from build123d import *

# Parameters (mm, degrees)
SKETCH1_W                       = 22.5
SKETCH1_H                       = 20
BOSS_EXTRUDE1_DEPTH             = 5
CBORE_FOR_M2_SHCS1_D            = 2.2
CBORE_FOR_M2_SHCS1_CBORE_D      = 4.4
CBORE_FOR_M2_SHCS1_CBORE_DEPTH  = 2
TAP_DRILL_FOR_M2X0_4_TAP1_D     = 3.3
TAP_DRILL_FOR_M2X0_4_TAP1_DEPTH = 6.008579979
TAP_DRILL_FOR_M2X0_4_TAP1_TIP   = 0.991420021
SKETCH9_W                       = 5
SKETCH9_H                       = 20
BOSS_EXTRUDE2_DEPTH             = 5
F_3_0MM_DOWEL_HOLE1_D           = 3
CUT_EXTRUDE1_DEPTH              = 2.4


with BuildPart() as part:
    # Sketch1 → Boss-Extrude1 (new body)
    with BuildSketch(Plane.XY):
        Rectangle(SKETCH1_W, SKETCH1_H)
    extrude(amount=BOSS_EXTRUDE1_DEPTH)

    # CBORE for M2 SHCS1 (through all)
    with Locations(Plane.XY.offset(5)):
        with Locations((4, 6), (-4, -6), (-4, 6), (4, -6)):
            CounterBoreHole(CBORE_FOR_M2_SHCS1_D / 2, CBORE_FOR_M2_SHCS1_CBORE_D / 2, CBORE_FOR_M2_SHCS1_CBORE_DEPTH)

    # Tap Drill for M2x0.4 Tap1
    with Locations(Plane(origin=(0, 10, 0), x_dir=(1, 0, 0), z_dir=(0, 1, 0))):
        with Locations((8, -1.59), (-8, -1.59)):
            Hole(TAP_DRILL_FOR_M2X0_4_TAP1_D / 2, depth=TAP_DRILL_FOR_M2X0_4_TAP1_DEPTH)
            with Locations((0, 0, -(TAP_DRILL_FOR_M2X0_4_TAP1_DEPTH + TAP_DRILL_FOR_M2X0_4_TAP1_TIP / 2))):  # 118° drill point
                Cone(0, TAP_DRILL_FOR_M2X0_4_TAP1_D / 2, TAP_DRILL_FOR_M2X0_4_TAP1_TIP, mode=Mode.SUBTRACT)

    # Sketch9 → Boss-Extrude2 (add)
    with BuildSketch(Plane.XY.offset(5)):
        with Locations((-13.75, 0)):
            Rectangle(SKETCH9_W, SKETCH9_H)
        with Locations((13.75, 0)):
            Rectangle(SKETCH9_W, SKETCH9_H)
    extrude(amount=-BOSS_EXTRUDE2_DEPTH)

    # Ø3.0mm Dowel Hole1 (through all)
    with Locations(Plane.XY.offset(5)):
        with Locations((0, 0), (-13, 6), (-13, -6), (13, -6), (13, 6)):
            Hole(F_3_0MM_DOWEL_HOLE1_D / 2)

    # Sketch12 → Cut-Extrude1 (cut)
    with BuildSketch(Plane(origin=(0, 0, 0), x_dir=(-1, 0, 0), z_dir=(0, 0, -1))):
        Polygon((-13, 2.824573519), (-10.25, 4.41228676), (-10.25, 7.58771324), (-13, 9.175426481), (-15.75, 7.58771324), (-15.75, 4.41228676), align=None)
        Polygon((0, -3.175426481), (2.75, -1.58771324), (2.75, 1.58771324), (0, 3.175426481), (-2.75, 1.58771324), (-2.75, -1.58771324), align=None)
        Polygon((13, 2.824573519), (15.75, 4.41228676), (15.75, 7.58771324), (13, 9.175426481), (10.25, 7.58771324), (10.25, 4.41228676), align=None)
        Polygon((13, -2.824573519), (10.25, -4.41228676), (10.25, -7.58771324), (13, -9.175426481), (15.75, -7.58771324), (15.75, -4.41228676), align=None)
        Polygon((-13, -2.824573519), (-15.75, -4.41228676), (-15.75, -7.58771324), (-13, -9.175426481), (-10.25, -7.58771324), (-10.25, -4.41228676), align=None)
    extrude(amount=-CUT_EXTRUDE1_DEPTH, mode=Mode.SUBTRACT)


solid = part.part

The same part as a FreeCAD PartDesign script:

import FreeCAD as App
import Part
import Sketcher
from FreeCAD import Vector
Q = App.Units.Quantity

doc = App.newDocument("Part")
body = doc.addObject("PartDesign::Body", "Body")

sketch1 = body.newObject("Sketcher::SketchObject", "Sketch")
sketch1.AttachmentSupport = (doc.getObject("XY_Plane"), [""])
sketch1.MapMode = "FlatFace"
sketch1.addGeometry(Part.LineSegment(Vector(-11, 10, 0), Vector(-11, -10, 0)), False)
sketch1.addGeometry(Part.LineSegment(Vector(-11, -10, 0), Vector(11, -10, 0)), False)
sketch1.addGeometry(Part.LineSegment(Vector(11, -10, 0), Vector(11, 10, 0)), False)
sketch1.addGeometry(Part.LineSegment(Vector(11, 10, 0), Vector(-11, 10, 0)), False)
sketch1.addConstraint(Sketcher.Constraint("Coincident", 0, 2, 1, 1))
sketch1.addConstraint(Sketcher.Constraint("Coincident", 1, 2, 2, 1))
sketch1.addConstraint(Sketcher.Constraint("Coincident", 2, 2, 3, 1))
sketch1.addConstraint(Sketcher.Constraint("Coincident", 3, 2, 0, 1))
sketch1.addConstraint(Sketcher.Constraint("Vertical", 0))
sketch1.addConstraint(Sketcher.Constraint("Horizontal", 1))
sketch1.addConstraint(Sketcher.Constraint("Vertical", 2))
sketch1.addConstraint(Sketcher.Constraint("Horizontal", 3))
sketch1.addConstraint(Sketcher.Constraint("Symmetric", 0, 2, 2, 2, -1, 1))
sketch1.addConstraint(Sketcher.Constraint("DistanceY", 0, 2, 0, 1, Q("20 mm")))
sketch1.addConstraint(Sketcher.Constraint("DistanceX", 1, 1, 1, 2, Q("22.5 mm")))
pad1 = body.newObject("PartDesign::Pad", "Pad")
pad1.Profile = sketch1
pad1.Length = 5

sketch2 = body.newObject("Sketcher::SketchObject", "Sketch001")
sketch2.AttachmentSupport = (doc.getObject("XY_Plane"), [""])
sketch2.MapMode = "FlatFace"
sketch2.AttachmentOffset = App.Placement(Vector(0, 0, 5), App.Rotation())
sketch2.addGeometry(Part.Circle(Vector(4, 6, 0), Vector(0, 0, 1), 1.1), False)
sketch2.addGeometry(Part.Circle(Vector(-4, -6, 0), Vector(0, 0, 1), 1.1), False)
sketch2.addGeometry(Part.Circle(Vector(-4, 6, 0), Vector(0, 0, 1), 1.1), False)
sketch2.addGeometry(Part.Circle(Vector(4, -6, 0), Vector(0, 0, 1), 1.1), False)
sketch2.addConstraint(Sketcher.Constraint("Equal", 0, 1))
sketch2.addConstraint(Sketcher.Constraint("Equal", 1, 2))
sketch2.addConstraint(Sketcher.Constraint("Equal", 2, 3))
sketch2.addConstraint(Sketcher.Constraint("Symmetric", 0, 3, 1, 3, -1, 1))
sketch2.addConstraint(Sketcher.Constraint("Symmetric", 2, 3, 3, 3, -1, 1))
sketch2.addConstraint(Sketcher.Constraint("Symmetric", 0, 3, 2, 3, -2))
sketch2.addConstraint(Sketcher.Constraint("Diameter", 0, Q("2.2 mm")))
sketch2.addConstraint(Sketcher.Constraint("DistanceX", -1, 1, 0, 3, Q("4 mm")))
sketch2.addConstraint(Sketcher.Constraint("DistanceY", -1, 1, 0, 3, Q("6 mm")))
doc.recompute()
hole = body.newObject("PartDesign::Hole", "Hole")
hole.Profile = sketch2
hole.ThreadType = "None"
hole.Diameter = 2.2
hole.DepthType = "ThroughAll"
hole.HoleCutType = "Counterbore"
hole.HoleCutDiameter = 4.4
hole.HoleCutDepth = 2

sketch3 = body.newObject("Sketcher::SketchObject", "Sketch002")
sketch3.AttachmentSupport = (doc.getObject("XZ_Plane"), [""])
sketch3.MapMode = "FlatFace"
sketch3.AttachmentOffset = App.Placement(Vector(0, 0, -10), App.Rotation())
sketch3.addGeometry(Part.Circle(Vector(8, 1.6, 0), Vector(0, 0, 1), 1.6), False)
sketch3.addGeometry(Part.Circle(Vector(-8, 1.6, 0), Vector(0, 0, 1), 1.6), False)
sketch3.addConstraint(Sketcher.Constraint("Equal", 0, 1))
sketch3.addConstraint(Sketcher.Constraint("Symmetric", 0, 3, 1, 3, -2))
sketch3.addConstraint(Sketcher.Constraint("Diameter", 0, Q("3.3 mm")))
sketch3.addConstraint(Sketcher.Constraint("DistanceX", -1, 1, 0, 3, Q("8 mm")))
sketch3.addConstraint(Sketcher.Constraint("DistanceY", -1, 1, 0, 3, Q("1.59 mm")))
doc.recompute()
hole2 = body.newObject("PartDesign::Hole", "Hole001")
hole2.Profile = sketch3
hole2.ThreadType = "None"
hole2.Diameter = 3.3
hole2.DepthType = "Dimension"
hole2.Depth = 6.00858
hole2.DrillPoint = "Angled"
hole2.DrillPointAngle = 118
hole2.Reversed = True

sketch4 = body.newObject("Sketcher::SketchObject", "Sketch003")
sketch4.AttachmentSupport = (doc.getObject("XY_Plane"), [""])
sketch4.MapMode = "FlatFace"
sketch4.AttachmentOffset = App.Placement(Vector(0, 0, 5), App.Rotation())
sketch4.addGeometry(Part.LineSegment(Vector(-16, 10, 0), Vector(-16, -10, 0)), False)
sketch4.addGeometry(Part.LineSegment(Vector(-16, -10, 0), Vector(-11, -10, 0)), False)
sketch4.addGeometry(Part.LineSegment(Vector(-11, -10, 0), Vector(-11, 10, 0)), False)
sketch4.addGeometry(Part.LineSegment(Vector(-11, 10, 0), Vector(-16, 10, 0)), False)
sketch4.addGeometry(Part.LineSegment(Vector(11, 10, 0), Vector(11, -10, 0)), False)
sketch4.addGeometry(Part.LineSegment(Vector(11, -10, 0), Vector(16, -10, 0)), False)
sketch4.addGeometry(Part.LineSegment(Vector(16, -10, 0), Vector(16, 10, 0)), False)
sketch4.addGeometry(Part.LineSegment(Vector(16, 10, 0), Vector(11, 10, 0)), False)
sketch4.addConstraint(Sketcher.Constraint("Coincident", 0, 2, 1, 1))
sketch4.addConstraint(Sketcher.Constraint("Coincident", 1, 2, 2, 1))
sketch4.addConstraint(Sketcher.Constraint("Coincident", 2, 2, 3, 1))
sketch4.addConstraint(Sketcher.Constraint("Coincident", 3, 2, 0, 1))
sketch4.addConstraint(Sketcher.Constraint("Coincident", 4, 2, 5, 1))
sketch4.addConstraint(Sketcher.Constraint("Coincident", 5, 2, 6, 1))
sketch4.addConstraint(Sketcher.Constraint("Coincident", 6, 2, 7, 1))
sketch4.addConstraint(Sketcher.Constraint("Coincident", 7, 2, 4, 1))
sketch4.addConstraint(Sketcher.Constraint("Vertical", 0))
sketch4.addConstraint(Sketcher.Constraint("Horizontal", 1))
sketch4.addConstraint(Sketcher.Constraint("Vertical", 2))
sketch4.addConstraint(Sketcher.Constraint("Horizontal", 3))
sketch4.addConstraint(Sketcher.Constraint("Vertical", 4))
sketch4.addConstraint(Sketcher.Constraint("Horizontal", 5))
sketch4.addConstraint(Sketcher.Constraint("Vertical", 6))
sketch4.addConstraint(Sketcher.Constraint("Horizontal", 7))
sketch4.addConstraint(Sketcher.Constraint("Symmetric", 2, 2, 4, 2, -1, 1))
sketch4.addConstraint(Sketcher.Constraint("Symmetric", 0, 2, 6, 2, -1, 1))
sketch4.addConstraint(Sketcher.Constraint("Horizontal", 1, 2, 4, 2))
sketch4.addConstraint(Sketcher.Constraint("DistanceX", 1, 1, 1, 2, Q("5 mm")))
sketch4.addConstraint(Sketcher.Constraint("DistanceY", 0, 2, 0, 1, Q("20 mm")))
sketch4.addConstraint(Sketcher.Constraint("DistanceX", 1, 2, 4, 2, Q("22.5 mm")))
pad2 = body.newObject("PartDesign::Pad", "Pad001")
pad2.Profile = sketch4
pad2.Length = 5
pad2.Reversed = True

sketch5 = body.newObject("Sketcher::SketchObject", "Sketch004")
sketch5.AttachmentSupport = (doc.getObject("XY_Plane"), [""])
sketch5.MapMode = "FlatFace"
sketch5.AttachmentOffset = App.Placement(Vector(0, 0, 5), App.Rotation())
sketch5.addGeometry(Part.Circle(Vector(0, 0, 0), Vector(0, 0, 1), 1.5), False)
sketch5.addGeometry(Part.Circle(Vector(-13, 6, 0), Vector(0, 0, 1), 1.5), False)
sketch5.addGeometry(Part.Circle(Vector(-13, -6, 0), Vector(0, 0, 1), 1.5), False)
sketch5.addGeometry(Part.Circle(Vector(13, -6, 0), Vector(0, 0, 1), 1.5), False)
sketch5.addGeometry(Part.Circle(Vector(13, 6, 0), Vector(0, 0, 1), 1.5), False)
sketch5.addConstraint(Sketcher.Constraint("Coincident", 0, 3, -1, 1))
sketch5.addConstraint(Sketcher.Constraint("Equal", 0, 1))
sketch5.addConstraint(Sketcher.Constraint("Equal", 1, 2))
sketch5.addConstraint(Sketcher.Constraint("Equal", 2, 3))
sketch5.addConstraint(Sketcher.Constraint("Equal", 3, 4))
sketch5.addConstraint(Sketcher.Constraint("Symmetric", 1, 3, 3, 3, -1, 1))
sketch5.addConstraint(Sketcher.Constraint("Symmetric", 2, 3, 4, 3, -1, 1))
sketch5.addConstraint(Sketcher.Constraint("Symmetric", 2, 3, 3, 3, -2))
sketch5.addConstraint(Sketcher.Constraint("Diameter", 0, Q("3 mm")))
sketch5.addConstraint(Sketcher.Constraint("DistanceX", 1, 3, -1, 1, Q("13 mm")))
sketch5.addConstraint(Sketcher.Constraint("DistanceY", -1, 1, 1, 3, Q("6 mm")))
doc.recompute()
hole3 = body.newObject("PartDesign::Hole", "Hole002")
hole3.Profile = sketch5
hole3.ThreadType = "None"
hole3.Diameter = 3
hole3.DepthType = "ThroughAll"

sketch6 = body.newObject("Sketcher::SketchObject", "Sketch005")
sketch6.AttachmentSupport = (doc.getObject("XY_Plane"), [""])
sketch6.MapMode = "FlatFace"
sketch6.addGeometry(Part.LineSegment(Vector(13, 2.8, 0), Vector(10.2, 4.4, 0)), False)
sketch6.addGeometry(Part.LineSegment(Vector(10.2, 4.4, 0), Vector(10.2, 7.6, 0)), False)
sketch6.addGeometry(Part.LineSegment(Vector(10.2, 7.6, 0), Vector(13, 9.2, 0)), False)
sketch6.addGeometry(Part.LineSegment(Vector(13, 9.2, 0), Vector(15.8, 7.6, 0)), False)
sketch6.addGeometry(Part.LineSegment(Vector(15.8, 7.6, 0), Vector(15.8, 4.4, 0)), False)
sketch6.addGeometry(Part.LineSegment(Vector(15.8, 4.4, 0), Vector(13, 2.8, 0)), False)
sketch6.addGeometry(Part.LineSegment(Vector(0, -3.2, 0), Vector(-2.8, -1.6, 0)), False)
sketch6.addGeometry(Part.LineSegment(Vector(-2.8, -1.6, 0), Vector(-2.8, 1.6, 0)), False)
sketch6.addGeometry(Part.LineSegment(Vector(-2.8, 1.6, 0), Vector(0, 3.2, 0)), False)
sketch6.addGeometry(Part.LineSegment(Vector(0, 3.2, 0), Vector(2.8, 1.6, 0)), False)
sketch6.addGeometry(Part.LineSegment(Vector(2.8, 1.6, 0), Vector(2.8, -1.6, 0)), False)
sketch6.addGeometry(Part.LineSegment(Vector(2.8, -1.6, 0), Vector(0, -3.2, 0)), False)
sketch6.addGeometry(Part.LineSegment(Vector(-13, 2.8, 0), Vector(-15.8, 4.4, 0)), False)
sketch6.addGeometry(Part.LineSegment(Vector(-15.8, 4.4, 0), Vector(-15.8, 7.6, 0)), False)
sketch6.addGeometry(Part.LineSegment(Vector(-15.8, 7.6, 0), Vector(-13, 9.2, 0)), False)
sketch6.addGeometry(Part.LineSegment(Vector(-13, 9.2, 0), Vector(-10.2, 7.6, 0)), False)
sketch6.addGeometry(Part.LineSegment(Vector(-10.2, 7.6, 0), Vector(-10.2, 4.4, 0)), False)
sketch6.addGeometry(Part.LineSegment(Vector(-10.2, 4.4, 0), Vector(-13, 2.8, 0)), False)
sketch6.addGeometry(Part.LineSegment(Vector(-13, -2.8, 0), Vector(-10.2, -4.4, 0)), False)
sketch6.addGeometry(Part.LineSegment(Vector(-10.2, -4.4, 0), Vector(-10.2, -7.6, 0)), False)
sketch6.addGeometry(Part.LineSegment(Vector(-10.2, -7.6, 0), Vector(-13, -9.2, 0)), False)
sketch6.addGeometry(Part.LineSegment(Vector(-13, -9.2, 0), Vector(-15.8, -7.6, 0)), False)
sketch6.addGeometry(Part.LineSegment(Vector(-15.8, -7.6, 0), Vector(-15.8, -4.4, 0)), False)
sketch6.addGeometry(Part.LineSegment(Vector(-15.8, -4.4, 0), Vector(-13, -2.8, 0)), False)
sketch6.addGeometry(Part.LineSegment(Vector(13, -2.8, 0), Vector(15.8, -4.4, 0)), False)
sketch6.addGeometry(Part.LineSegment(Vector(15.8, -4.4, 0), Vector(15.8, -7.6, 0)), False)
sketch6.addGeometry(Part.LineSegment(Vector(15.8, -7.6, 0), Vector(13, -9.2, 0)), False)
sketch6.addGeometry(Part.LineSegment(Vector(13, -9.2, 0), Vector(10.2, -7.6, 0)), False)
sketch6.addGeometry(Part.LineSegment(Vector(10.2, -7.6, 0), Vector(10.2, -4.4, 0)), False)
sketch6.addGeometry(Part.LineSegment(Vector(10.2, -4.4, 0), Vector(13, -2.8, 0)), False)
sketch6.addConstraint(Sketcher.Constraint("Coincident", 0, 2, 1, 1))
sketch6.addConstraint(Sketcher.Constraint("Coincident", 1, 2, 2, 1))
sketch6.addConstraint(Sketcher.Constraint("Coincident", 2, 2, 3, 1))
sketch6.addConstraint(Sketcher.Constraint("Coincident", 3, 2, 4, 1))
sketch6.addConstraint(Sketcher.Constraint("Coincident", 4, 2, 5, 1))
sketch6.addConstraint(Sketcher.Constraint("Coincident", 5, 2, 0, 1))
sketch6.addConstraint(Sketcher.Constraint("Coincident", 6, 2, 7, 1))
sketch6.addConstraint(Sketcher.Constraint("Coincident", 7, 2, 8, 1))
sketch6.addConstraint(Sketcher.Constraint("Coincident", 8, 2, 9, 1))
sketch6.addConstraint(Sketcher.Constraint("Coincident", 9, 2, 10, 1))
sketch6.addConstraint(Sketcher.Constraint("Coincident", 10, 2, 11, 1))
sketch6.addConstraint(Sketcher.Constraint("Coincident", 11, 2, 6, 1))
sketch6.addConstraint(Sketcher.Constraint("Coincident", 12, 2, 13, 1))
sketch6.addConstraint(Sketcher.Constraint("Coincident", 13, 2, 14, 1))
sketch6.addConstraint(Sketcher.Constraint("Coincident", 14, 2, 15, 1))
sketch6.addConstraint(Sketcher.Constraint("Coincident", 15, 2, 16, 1))
sketch6.addConstraint(Sketcher.Constraint("Coincident", 16, 2, 17, 1))
sketch6.addConstraint(Sketcher.Constraint("Coincident", 17, 2, 12, 1))
sketch6.addConstraint(Sketcher.Constraint("Coincident", 18, 2, 19, 1))
sketch6.addConstraint(Sketcher.Constraint("Coincident", 19, 2, 20, 1))
sketch6.addConstraint(Sketcher.Constraint("Coincident", 20, 2, 21, 1))
sketch6.addConstraint(Sketcher.Constraint("Coincident", 21, 2, 22, 1))
sketch6.addConstraint(Sketcher.Constraint("Coincident", 22, 2, 23, 1))
sketch6.addConstraint(Sketcher.Constraint("Coincident", 23, 2, 18, 1))
sketch6.addConstraint(Sketcher.Constraint("Coincident", 24, 2, 25, 1))
sketch6.addConstraint(Sketcher.Constraint("Coincident", 25, 2, 26, 1))
sketch6.addConstraint(Sketcher.Constraint("Coincident", 26, 2, 27, 1))
sketch6.addConstraint(Sketcher.Constraint("Coincident", 27, 2, 28, 1))
sketch6.addConstraint(Sketcher.Constraint("Coincident", 28, 2, 29, 1))
sketch6.addConstraint(Sketcher.Constraint("Coincident", 29, 2, 24, 1))
sketch6.addConstraint(Sketcher.Constraint("Vertical", 1))
sketch6.addConstraint(Sketcher.Constraint("Vertical", 4))
sketch6.addConstraint(Sketcher.Constraint("Vertical", 7))
sketch6.addConstraint(Sketcher.Constraint("Vertical", 10))
sketch6.addConstraint(Sketcher.Constraint("Vertical", 13))
sketch6.addConstraint(Sketcher.Constraint("Vertical", 16))
sketch6.addConstraint(Sketcher.Constraint("Vertical", 19))
sketch6.addConstraint(Sketcher.Constraint("Vertical", 22))
sketch6.addConstraint(Sketcher.Constraint("Vertical", 25))
sketch6.addConstraint(Sketcher.Constraint("Vertical", 28))
sketch6.addConstraint(Sketcher.Constraint("Symmetric", 6, 2, 9, 2, -1, 1))
sketch6.addConstraint(Sketcher.Constraint("Symmetric", 8, 2, 11, 2, -1, 1))
sketch6.addConstraint(Sketcher.Constraint("Symmetric", 0, 2, 18, 2, -1, 1))
sketch6.addConstraint(Sketcher.Constraint("Symmetric", 2, 2, 20, 2, -1, 1))
sketch6.addConstraint(Sketcher.Constraint("Symmetric", 3, 2, 21, 2, -1, 1))
sketch6.addConstraint(Sketcher.Constraint("Symmetric", 5, 2, 23, 2, -1, 1))
sketch6.addConstraint(Sketcher.Constraint("Symmetric", 12, 2, 24, 2, -1, 1))
sketch6.addConstraint(Sketcher.Constraint("Symmetric", 14, 2, 26, 2, -1, 1))
sketch6.addConstraint(Sketcher.Constraint("Symmetric", 15, 2, 27, 2, -1, 1))
sketch6.addConstraint(Sketcher.Constraint("Symmetric", 17, 2, 29, 2, -1, 1))
sketch6.addConstraint(Sketcher.Constraint("Symmetric", 4, 2, 12, 2, -2))
sketch6.addConstraint(Sketcher.Constraint("Symmetric", 2, 2, 14, 2, -2))
sketch6.addConstraint(Sketcher.Constraint("Symmetric", 1, 2, 15, 2, -2))
sketch6.addConstraint(Sketcher.Constraint("Symmetric", 5, 2, 17, 2, -2))
sketch6.addConstraint(Sketcher.Constraint("PointOnObject", 8, 2, -2))
sketch6.addConstraint(Sketcher.Constraint("Parallel", 0, 3))
sketch6.addConstraint(Sketcher.Constraint("Parallel", 2, 5))
sketch6.addConstraint(Sketcher.Constraint("Parallel", 3, 6))
sketch6.addConstraint(Sketcher.Constraint("Parallel", 5, 8))
sketch6.addConstraint(Sketcher.Constraint("Parallel", 8, 11))
sketch6.addConstraint(Sketcher.Constraint("Parallel", 9, 12))
sketch6.addConstraint(Sketcher.Constraint("Parallel", 11, 14))
sketch6.addConstraint(Sketcher.Constraint("Parallel", 14, 17))
sketch6.addConstraint(Sketcher.Constraint("Parallel", 17, 20))
sketch6.addConstraint(Sketcher.Constraint("Parallel", 20, 23))
sketch6.addConstraint(Sketcher.Constraint("Parallel", 23, 26))
sketch6.addConstraint(Sketcher.Constraint("Parallel", 26, 29))
sketch6.addConstraint(Sketcher.Constraint("Horizontal", 1, 2, 3, 2))
sketch6.addConstraint(Sketcher.Constraint("Horizontal", 0, 2, 4, 2))
sketch6.addConstraint(Sketcher.Constraint("Equal", 4, 7))
sketch6.addConstraint(Sketcher.Constraint("Equal", 5, 6))
sketch6.addConstraint(Sketcher.Constraint("Angle", 0, Q("150 deg")))
sketch6.addConstraint(Sketcher.Constraint("DistanceX", -1, 1, 2, 2, Q("13 mm")))
sketch6.addConstraint(Sketcher.Constraint("DistanceY", 6, 2, 0, 2, Q("6 mm")))
sketch6.addConstraint(Sketcher.Constraint("DistanceX", 1, 2, 3, 2, Q("5.5 mm")))
sketch6.addConstraint(Sketcher.Constraint("DistanceY", 1, 1, 1, 2, Q("3.175426 mm")))
pocket1 = body.newObject("PartDesign::Pocket", "Pocket")
pocket1.Profile = sketch6
pocket1.Length = 2.4
pocket1.Reversed = True

doc.recompute()
